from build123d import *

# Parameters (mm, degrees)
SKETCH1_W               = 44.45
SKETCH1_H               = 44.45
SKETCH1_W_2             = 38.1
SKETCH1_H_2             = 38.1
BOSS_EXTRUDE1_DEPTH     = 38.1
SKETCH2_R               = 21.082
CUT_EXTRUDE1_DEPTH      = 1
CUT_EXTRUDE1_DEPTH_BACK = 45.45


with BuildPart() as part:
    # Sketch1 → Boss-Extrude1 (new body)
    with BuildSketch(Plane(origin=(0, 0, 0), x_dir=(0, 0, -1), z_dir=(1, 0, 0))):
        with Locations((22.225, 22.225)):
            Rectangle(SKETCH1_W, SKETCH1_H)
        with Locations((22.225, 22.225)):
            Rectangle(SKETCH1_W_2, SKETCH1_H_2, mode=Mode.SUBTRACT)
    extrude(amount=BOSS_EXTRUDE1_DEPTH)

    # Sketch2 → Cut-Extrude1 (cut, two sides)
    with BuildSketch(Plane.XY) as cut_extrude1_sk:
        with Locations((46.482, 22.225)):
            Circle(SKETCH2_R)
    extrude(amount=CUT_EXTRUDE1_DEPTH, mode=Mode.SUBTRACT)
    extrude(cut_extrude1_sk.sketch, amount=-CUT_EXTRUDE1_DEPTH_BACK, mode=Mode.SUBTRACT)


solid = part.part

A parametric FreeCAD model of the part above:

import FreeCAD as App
import Part
import Sketcher
Q = App.Units.Quantity

doc = App.newDocument("Part")
params = doc.addObject("Spreadsheet::Sheet", "Params")
for row, (alias, value) in enumerate([
    ("sketch1_width", "1.5 in"),
    ("sketch1_width2", "1.75 in"),
    ("pad1_length", "1.5 in"),
    ("sketch2_diameter", "1.66 in"),
], start=1):
    params.set(f"A{row}", alias)
    params.set(f"B{row}", "=" + value)
    params.setAlias(f"B{row}", alias)

body = doc.addObject("PartDesign::Body", "Body")

# Sketch on YZ plane
sketch1 = body.newObject("Sketcher::SketchObject", "Sketch")
sketch1.AttachmentSupport = (doc.getObject("YZ_Plane"), [""])
sketch1.MapMode = "FlatFace"
sketch1.addGeometry(Part.LineSegment(App.Vector(44.45, 0, 0), App.Vector(0, 0, 0)), False)
sketch1.addGeometry(Part.LineSegment(App.Vector(0, 0, 0), App.Vector(0, -44.45, 0)), False)
sketch1.addGeometry(Part.LineSegment(App.Vector(0, -44.45, 0), App.Vector(44.45, -44.45, 0)), False)
sketch1.addGeometry(Part.LineSegment(App.Vector(44.45, -44.45, 0), App.Vector(44.45, 0, 0)), False)
sketch1.addGeometry(Part.LineSegment(App.Vector(3.175, -41.275, 0), App.Vector(3.175, -3.175, 0)), False)
sketch1.addGeometry(Part.LineSegment(App.Vector(3.175, -3.175, 0), App.Vector(41.275, -3.175, 0)), False)
sketch1.addGeometry(Part.LineSegment(App.Vector(41.275, -3.175, 0), App.Vector(41.275, -41.275, 0)), False)
sketch1.addGeometry(Part.LineSegment(App.Vector(41.275, -41.275, 0), App.Vector(3.175, -41.275, 0)), False)
sketch1.addConstraint(Sketcher.Constraint("Coincident", 0, 2, 1, 1))
sketch1.addConstraint(Sketcher.Constraint("Coincident", 1, 2, 2, 1))
sketch1.addConstraint(Sketcher.Constraint("Coincident", 2, 2, 3, 1))
sketch1.addConstraint(Sketcher.Constraint("Coincident", 3, 2, 0, 1))
sketch1.addConstraint(Sketcher.Constraint("Coincident", 4, 2, 5, 1))
sketch1.addConstraint(Sketcher.Constraint("Coincident", 5, 2, 6, 1))
sketch1.addConstraint(Sketcher.Constraint("Coincident", 6, 2, 7, 1))
sketch1.addConstraint(Sketcher.Constraint("Coincident", 7, 2, 4, 1))
sketch1.addConstraint(Sketcher.Constraint("Horizontal", 0))
sketch1.addConstraint(Sketcher.Constraint("Vertical", 1))
sketch1.addConstraint(Sketcher.Constraint("Horizontal", 2))
sketch1.addConstraint(Sketcher.Constraint("Vertical", 3))
sketch1.addConstraint(Sketcher.Constraint("Vertical", 4))
sketch1.addConstraint(Sketcher.Constraint("Horizontal", 5))
sketch1.addConstraint(Sketcher.Constraint("Vertical", 6))
sketch1.addConstraint(Sketcher.Constraint("Horizontal", 7))
sketch1.addConstraint(Sketcher.Constraint("Coincident", 0, 2, -1, 1))
sketch1.addConstraint(Sketcher.Constraint("Equal", 2, 1))
sketch1.addConstraint(Sketcher.Constraint("Equal", 7, 4))
sketch1.addConstraint(Sketcher.Constraint("DistanceX", 5, 1, 5, 2, Q("1.5 in")))
sketch1.addConstraint(Sketcher.Constraint("DistanceX", 0, 2, 0, 1, Q("1.75 in")))
sketch1.addConstraint(Sketcher.Constraint("DistanceX", -1, 1, 4, 2, Q("0.125 in")))
sketch1.addConstraint(Sketcher.Constraint("DistanceY", 4, 2, -1, 1, Q("0.125 in")))
sketch1.setExpression("Constraints[19]", "Params.sketch1_width")
sketch1.setExpression("Constraints[20]", "Params.sketch1_width2")
pad1 = body.newObject("PartDesign::Pad", "Pad")
pad1.Profile = sketch1
pad1.setExpression("Length", "Params.pad1_length")

# Sketch on XY plane
sketch2 = body.newObject("Sketcher::SketchObject", "Sketch001")
sketch2.AttachmentSupport = (doc.getObject("XY_Plane"), [""])
sketch2.MapMode = "FlatFace"
sketch2.addGeometry(Part.Circle(App.Vector(46.482, 22.225, 0), App.Vector(0, 0, 1), 21.082), False)
sketch2.addConstraint(Sketcher.Constraint("Diameter", 0, Q("1.66 in")))
sketch2.addConstraint(Sketcher.Constraint("DistanceX", -1, 1, 0, 3, Q("1.83 in")))
sketch2.addConstraint(Sketcher.Constraint("DistanceY", -1, 1, 0, 3, Q("0.875 in")))
sketch2.setExpression("Constraints[0]", "Params.sketch2_diameter")
pocket1 = body.newObject("PartDesign::Pocket", "Pocket")
pocket1.Profile = sketch2
pocket1.Type = "ThroughAll"
pocket1.Midplane = True

doc.recompute()
